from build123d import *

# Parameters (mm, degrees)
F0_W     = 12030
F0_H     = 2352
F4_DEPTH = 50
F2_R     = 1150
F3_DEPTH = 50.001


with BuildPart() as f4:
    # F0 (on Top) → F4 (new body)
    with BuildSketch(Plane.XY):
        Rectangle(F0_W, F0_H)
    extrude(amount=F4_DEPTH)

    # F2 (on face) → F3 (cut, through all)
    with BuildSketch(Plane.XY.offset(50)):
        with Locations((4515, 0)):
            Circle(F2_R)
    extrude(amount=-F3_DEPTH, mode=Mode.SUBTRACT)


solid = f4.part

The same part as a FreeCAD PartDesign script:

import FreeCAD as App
import Part
import Sketcher

doc = App.newDocument("Part")
body = doc.addObject("PartDesign::Body", "Body")

# Sketch on XY plane
sketch1 = body.newObject("Sketcher::SketchObject", "Sketch")
sketch1.AttachmentSupport = (doc.getObject("XY_Plane"), [""])
sketch1.MapMode = "FlatFace"
sketch1.addGeometry([
    Part.LineSegment(App.Vector(-6015, 1176, 0), App.Vector(-6015, -1176, 0)),
    Part.LineSegment(App.Vector(-6015, -1176, 0), App.Vector(6015, -1176, 0)),
    Part.LineSegment(App.Vector(6015, -1176, 0), App.Vector(6015, 1176, 0)),
    Part.LineSegment(App.Vector(6015, 1176, 0), App.Vector(-6015, 1176, 0)),
], False)
sketch1.addConstraint([
    Sketcher.Constraint("Coincident", 0, 2, 1, 1),
    Sketcher.Constraint("Coincident", 1, 2, 2, 1),
    Sketcher.Constraint("Coincident", 2, 2, 3, 1),
    Sketcher.Constraint("Coincident", 3, 2, 0, 1),
    Sketcher.Constraint("Vertical", 0),
    Sketcher.Constraint("Horizontal", 1),
    Sketcher.Constraint("Vertical", 2),
    Sketcher.Constraint("Horizontal", 3),
    Sketcher.Constraint("Symmetric", 0, 2, 2, 2, -1, 1),
    Sketcher.Constraint("DistanceX", 1, 1, 1, 2, 12030.0),
    Sketcher.Constraint("DistanceY", 0, 2, 0, 1, 2352.0),
])
pad1 = body.newObject("PartDesign::Pad", "Pad")
pad1.Profile = sketch1
pad1.Length = 50

# Sketch on XY plane
sketch2 = body.newObject("Sketcher::SketchObject", "Sketch001")
sketch2.AttachmentSupport = (doc.getObject("XY_Plane"), [""])
sketch2.MapMode = "FlatFace"
sketch2.AttachmentOffset = App.Placement(App.Vector(0, 0, 50), App.Rotation())
sketch2.addGeometry(Part.Circle(App.Vector(4515, 0, 0), App.Vector(0, 0, 1), 1150), False)
sketch2.addConstraint([
    Sketcher.Constraint("PointOnObject", 0, 3, -1),
    Sketcher.Constraint("Diameter", 0, 2300.0),
    Sketcher.Constraint("DistanceX", -1, 1, 0, 3, 4515.0),
])
pocket1 = body.newObject("PartDesign::Pocket", "Pocket")
pocket1.Profile = sketch2
pocket1.Type = "ThroughAll"

doc.recompute()
